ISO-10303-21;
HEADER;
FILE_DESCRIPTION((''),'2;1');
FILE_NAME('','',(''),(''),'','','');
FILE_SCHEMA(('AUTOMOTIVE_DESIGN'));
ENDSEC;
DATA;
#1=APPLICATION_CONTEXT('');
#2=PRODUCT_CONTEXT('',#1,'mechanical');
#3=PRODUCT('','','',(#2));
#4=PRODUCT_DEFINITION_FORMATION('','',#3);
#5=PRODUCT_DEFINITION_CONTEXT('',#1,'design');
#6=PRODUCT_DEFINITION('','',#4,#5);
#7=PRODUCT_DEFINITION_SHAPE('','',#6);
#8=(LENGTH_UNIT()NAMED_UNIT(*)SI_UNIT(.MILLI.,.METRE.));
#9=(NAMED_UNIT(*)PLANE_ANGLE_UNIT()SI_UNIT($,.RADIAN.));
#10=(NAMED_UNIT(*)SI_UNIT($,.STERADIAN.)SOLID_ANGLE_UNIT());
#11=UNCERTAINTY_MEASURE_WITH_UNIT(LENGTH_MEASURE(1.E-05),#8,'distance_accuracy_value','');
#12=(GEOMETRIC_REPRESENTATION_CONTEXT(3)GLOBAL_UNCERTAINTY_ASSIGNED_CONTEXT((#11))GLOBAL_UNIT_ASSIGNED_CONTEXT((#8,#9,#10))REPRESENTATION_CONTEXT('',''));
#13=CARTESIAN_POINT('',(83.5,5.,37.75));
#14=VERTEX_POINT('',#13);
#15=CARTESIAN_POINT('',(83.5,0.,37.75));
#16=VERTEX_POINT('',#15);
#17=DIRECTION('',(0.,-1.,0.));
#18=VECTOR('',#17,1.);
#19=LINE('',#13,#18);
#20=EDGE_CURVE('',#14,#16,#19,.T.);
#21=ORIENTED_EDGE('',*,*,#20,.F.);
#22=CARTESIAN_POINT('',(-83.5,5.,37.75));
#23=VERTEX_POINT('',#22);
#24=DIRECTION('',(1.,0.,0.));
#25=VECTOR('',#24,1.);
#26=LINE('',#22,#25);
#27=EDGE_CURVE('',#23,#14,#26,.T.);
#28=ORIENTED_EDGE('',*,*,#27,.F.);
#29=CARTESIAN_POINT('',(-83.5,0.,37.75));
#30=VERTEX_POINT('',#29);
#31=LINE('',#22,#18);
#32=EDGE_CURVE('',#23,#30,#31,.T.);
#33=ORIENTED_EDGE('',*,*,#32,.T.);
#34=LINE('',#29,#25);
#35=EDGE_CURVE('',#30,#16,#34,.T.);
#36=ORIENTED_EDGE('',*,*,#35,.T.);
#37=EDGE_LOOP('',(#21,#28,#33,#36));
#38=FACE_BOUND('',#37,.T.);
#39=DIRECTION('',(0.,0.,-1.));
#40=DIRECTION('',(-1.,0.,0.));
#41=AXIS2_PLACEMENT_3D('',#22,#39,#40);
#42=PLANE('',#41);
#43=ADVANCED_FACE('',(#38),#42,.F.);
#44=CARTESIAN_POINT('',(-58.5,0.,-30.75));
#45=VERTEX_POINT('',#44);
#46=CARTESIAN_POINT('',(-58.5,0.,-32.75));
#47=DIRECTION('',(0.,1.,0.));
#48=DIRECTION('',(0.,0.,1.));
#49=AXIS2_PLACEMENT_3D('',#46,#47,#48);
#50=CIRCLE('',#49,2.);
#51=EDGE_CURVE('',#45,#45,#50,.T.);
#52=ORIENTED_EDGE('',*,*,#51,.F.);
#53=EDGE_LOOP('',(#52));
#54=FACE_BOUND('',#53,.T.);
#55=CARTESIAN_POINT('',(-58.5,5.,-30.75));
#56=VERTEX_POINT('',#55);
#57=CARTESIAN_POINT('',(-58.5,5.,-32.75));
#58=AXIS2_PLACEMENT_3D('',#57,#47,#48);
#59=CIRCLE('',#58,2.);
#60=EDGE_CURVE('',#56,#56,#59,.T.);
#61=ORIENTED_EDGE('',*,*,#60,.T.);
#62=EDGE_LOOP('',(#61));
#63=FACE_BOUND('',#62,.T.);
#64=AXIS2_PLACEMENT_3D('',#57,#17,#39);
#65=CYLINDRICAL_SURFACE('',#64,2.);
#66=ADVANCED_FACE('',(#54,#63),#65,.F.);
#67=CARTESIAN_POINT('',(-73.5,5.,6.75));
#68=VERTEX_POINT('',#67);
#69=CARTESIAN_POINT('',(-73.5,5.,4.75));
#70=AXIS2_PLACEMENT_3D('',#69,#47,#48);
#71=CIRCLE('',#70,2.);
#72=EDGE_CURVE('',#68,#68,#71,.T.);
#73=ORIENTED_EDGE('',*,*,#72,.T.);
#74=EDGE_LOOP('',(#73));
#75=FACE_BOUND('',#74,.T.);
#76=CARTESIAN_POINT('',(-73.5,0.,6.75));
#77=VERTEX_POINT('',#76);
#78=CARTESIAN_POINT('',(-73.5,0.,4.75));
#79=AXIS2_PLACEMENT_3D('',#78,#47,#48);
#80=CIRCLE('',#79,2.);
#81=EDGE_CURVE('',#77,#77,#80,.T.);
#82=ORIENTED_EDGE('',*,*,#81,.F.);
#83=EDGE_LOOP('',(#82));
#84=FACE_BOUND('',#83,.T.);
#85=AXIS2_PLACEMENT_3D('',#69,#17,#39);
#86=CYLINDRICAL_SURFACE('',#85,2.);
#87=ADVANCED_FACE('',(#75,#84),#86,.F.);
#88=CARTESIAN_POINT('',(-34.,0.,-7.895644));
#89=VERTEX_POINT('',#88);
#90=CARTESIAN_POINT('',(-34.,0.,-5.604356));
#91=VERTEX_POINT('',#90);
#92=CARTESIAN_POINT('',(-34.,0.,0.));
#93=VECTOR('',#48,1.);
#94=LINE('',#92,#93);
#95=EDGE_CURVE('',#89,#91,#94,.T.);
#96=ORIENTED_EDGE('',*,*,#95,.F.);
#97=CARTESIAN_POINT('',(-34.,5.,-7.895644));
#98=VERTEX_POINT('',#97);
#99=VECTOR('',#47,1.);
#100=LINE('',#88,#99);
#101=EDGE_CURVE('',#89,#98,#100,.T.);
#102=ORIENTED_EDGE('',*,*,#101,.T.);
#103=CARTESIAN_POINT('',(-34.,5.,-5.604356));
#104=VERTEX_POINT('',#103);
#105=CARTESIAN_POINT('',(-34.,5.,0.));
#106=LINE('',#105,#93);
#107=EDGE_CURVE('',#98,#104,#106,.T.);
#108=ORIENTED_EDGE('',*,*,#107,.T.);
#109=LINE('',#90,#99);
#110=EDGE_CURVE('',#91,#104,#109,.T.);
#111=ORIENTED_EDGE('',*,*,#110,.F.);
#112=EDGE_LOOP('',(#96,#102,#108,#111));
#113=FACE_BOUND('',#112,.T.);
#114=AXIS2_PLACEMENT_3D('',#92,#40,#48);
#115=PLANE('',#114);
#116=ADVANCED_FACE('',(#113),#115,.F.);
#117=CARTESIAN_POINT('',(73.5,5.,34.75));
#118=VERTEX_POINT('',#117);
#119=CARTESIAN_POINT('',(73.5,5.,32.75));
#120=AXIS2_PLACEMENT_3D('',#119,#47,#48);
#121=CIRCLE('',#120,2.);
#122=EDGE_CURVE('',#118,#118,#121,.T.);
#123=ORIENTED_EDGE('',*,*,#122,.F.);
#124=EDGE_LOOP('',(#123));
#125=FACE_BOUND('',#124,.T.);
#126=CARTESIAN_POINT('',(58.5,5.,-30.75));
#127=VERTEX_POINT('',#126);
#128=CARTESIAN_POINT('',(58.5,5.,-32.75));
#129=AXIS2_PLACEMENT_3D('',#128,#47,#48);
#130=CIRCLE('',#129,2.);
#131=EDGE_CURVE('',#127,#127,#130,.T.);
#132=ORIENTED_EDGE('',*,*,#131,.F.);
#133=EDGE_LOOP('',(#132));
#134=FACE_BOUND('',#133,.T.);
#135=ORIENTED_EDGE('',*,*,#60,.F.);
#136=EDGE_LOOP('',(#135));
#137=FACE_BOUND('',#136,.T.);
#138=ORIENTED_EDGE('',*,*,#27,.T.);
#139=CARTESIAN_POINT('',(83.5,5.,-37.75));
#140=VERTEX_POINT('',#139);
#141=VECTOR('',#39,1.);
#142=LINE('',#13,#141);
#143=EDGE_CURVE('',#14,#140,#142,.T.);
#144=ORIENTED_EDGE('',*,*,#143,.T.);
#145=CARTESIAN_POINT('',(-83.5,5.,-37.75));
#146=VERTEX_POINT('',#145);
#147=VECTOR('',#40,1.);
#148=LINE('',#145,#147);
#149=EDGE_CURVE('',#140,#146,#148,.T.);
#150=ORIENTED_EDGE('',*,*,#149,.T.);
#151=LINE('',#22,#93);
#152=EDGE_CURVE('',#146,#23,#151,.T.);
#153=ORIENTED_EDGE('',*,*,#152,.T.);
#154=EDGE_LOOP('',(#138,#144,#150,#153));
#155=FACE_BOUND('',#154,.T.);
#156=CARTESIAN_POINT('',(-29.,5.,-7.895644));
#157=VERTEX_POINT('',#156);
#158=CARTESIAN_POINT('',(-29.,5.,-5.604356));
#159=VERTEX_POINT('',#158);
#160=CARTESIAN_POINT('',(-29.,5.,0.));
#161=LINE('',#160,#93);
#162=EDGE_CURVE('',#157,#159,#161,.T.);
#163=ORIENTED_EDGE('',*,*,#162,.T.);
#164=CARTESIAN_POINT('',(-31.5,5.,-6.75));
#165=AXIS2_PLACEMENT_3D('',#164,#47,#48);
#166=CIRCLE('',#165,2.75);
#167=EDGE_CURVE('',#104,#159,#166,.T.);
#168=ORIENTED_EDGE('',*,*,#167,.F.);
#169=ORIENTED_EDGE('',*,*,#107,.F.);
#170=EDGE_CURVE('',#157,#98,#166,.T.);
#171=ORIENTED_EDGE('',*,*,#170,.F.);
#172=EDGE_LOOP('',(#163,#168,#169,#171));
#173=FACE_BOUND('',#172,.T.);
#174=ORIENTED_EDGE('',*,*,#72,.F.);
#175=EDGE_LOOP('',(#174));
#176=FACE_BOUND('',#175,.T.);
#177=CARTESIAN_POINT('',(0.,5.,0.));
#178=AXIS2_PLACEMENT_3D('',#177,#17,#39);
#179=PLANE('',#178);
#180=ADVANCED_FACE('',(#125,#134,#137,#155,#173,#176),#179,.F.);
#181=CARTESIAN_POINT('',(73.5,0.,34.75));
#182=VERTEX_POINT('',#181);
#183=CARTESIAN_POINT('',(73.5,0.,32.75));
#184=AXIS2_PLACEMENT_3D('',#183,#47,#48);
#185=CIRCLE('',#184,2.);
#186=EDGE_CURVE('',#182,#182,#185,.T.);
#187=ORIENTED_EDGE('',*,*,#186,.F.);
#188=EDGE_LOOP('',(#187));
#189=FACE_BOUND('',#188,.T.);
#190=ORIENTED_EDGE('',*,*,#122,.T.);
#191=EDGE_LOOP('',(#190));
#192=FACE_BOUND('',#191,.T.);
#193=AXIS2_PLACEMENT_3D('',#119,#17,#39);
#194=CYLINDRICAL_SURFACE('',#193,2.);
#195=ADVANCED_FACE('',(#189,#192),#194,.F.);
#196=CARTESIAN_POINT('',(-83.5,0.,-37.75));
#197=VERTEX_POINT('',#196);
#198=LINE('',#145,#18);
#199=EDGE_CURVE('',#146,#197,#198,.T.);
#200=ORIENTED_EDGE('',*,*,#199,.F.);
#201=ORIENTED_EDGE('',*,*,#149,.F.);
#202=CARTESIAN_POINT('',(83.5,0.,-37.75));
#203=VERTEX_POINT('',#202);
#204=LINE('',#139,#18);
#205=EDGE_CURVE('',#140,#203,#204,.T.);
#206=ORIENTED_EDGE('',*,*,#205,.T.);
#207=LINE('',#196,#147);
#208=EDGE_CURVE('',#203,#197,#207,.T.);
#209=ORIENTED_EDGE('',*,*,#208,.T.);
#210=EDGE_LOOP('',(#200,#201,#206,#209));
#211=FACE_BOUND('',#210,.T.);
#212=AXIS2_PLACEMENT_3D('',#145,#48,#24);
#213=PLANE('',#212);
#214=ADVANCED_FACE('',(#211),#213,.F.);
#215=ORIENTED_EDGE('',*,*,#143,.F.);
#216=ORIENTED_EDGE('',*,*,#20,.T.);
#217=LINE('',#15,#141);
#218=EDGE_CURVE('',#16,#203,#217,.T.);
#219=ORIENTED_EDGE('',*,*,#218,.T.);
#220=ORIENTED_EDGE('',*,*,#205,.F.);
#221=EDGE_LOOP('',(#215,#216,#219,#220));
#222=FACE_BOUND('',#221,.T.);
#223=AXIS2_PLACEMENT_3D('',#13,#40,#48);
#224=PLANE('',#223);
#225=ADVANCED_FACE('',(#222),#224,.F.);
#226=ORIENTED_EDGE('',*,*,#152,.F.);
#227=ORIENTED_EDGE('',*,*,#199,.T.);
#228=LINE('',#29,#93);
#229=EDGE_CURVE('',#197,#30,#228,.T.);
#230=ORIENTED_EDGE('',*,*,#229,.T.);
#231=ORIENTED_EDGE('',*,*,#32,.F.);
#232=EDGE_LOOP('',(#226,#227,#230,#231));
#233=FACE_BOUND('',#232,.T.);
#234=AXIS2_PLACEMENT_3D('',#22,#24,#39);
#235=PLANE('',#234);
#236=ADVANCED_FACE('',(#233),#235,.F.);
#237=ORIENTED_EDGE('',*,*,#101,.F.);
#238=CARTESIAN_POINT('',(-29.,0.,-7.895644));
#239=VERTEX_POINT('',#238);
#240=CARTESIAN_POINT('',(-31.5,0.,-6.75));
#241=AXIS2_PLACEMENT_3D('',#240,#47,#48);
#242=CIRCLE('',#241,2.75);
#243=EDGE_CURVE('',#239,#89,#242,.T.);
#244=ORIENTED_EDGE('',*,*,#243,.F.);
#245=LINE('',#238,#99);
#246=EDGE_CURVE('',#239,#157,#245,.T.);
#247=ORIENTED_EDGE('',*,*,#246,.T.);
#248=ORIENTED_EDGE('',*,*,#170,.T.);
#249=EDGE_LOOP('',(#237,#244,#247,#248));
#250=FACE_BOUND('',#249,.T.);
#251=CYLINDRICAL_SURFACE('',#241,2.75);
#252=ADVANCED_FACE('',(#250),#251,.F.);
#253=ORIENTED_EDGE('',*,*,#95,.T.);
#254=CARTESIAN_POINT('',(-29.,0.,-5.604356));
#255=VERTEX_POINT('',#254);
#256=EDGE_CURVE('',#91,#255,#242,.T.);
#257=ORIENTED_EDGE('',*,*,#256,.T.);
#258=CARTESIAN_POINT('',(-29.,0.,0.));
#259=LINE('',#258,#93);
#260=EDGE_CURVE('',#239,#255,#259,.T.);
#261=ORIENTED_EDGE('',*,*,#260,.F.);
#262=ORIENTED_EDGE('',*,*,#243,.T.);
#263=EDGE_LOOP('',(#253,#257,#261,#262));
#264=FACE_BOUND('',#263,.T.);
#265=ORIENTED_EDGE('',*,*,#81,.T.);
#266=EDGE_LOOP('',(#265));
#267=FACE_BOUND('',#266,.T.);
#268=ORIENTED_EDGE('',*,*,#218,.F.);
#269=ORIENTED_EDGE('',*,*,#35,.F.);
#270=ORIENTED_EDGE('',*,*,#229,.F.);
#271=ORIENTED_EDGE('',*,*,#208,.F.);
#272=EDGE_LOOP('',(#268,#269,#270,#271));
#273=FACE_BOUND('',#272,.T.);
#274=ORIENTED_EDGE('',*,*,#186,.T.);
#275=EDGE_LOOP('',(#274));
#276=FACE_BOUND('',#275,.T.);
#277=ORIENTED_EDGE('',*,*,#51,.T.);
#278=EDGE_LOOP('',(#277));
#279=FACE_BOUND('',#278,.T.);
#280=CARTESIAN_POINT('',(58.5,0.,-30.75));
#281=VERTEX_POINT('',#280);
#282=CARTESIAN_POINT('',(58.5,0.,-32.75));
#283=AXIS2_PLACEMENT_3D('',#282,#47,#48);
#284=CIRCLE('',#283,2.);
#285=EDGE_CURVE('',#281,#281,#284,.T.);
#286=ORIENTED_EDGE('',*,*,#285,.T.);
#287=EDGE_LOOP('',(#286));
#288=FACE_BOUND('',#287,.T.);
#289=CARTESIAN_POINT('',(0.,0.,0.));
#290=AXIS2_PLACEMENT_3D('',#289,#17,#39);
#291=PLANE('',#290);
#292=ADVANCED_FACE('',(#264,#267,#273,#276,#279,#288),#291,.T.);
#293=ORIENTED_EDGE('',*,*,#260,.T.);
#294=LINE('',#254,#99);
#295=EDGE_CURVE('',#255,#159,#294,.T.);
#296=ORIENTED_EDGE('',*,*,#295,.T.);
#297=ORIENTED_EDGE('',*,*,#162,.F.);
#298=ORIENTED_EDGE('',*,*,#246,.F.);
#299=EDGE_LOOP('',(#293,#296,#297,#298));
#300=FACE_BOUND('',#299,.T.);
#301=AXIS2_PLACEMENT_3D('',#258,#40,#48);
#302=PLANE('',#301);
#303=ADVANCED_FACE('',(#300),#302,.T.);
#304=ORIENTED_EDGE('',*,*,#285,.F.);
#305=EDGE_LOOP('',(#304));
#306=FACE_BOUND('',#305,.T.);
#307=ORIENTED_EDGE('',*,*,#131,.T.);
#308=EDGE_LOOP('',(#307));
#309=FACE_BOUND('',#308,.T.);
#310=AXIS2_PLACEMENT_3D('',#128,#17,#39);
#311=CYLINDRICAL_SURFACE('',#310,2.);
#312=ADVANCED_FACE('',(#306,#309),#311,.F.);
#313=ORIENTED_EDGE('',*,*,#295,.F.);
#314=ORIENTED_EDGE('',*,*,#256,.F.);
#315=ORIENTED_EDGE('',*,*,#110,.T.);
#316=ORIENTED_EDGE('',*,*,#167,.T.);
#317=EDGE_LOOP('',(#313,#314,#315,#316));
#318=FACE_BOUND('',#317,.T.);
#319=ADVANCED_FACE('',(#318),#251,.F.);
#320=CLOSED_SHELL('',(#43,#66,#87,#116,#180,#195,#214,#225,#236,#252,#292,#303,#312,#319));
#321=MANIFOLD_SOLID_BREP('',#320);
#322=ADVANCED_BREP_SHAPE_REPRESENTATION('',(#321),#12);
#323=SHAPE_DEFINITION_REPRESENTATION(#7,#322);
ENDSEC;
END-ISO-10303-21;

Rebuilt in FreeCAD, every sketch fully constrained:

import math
import FreeCAD as App
import Part
import Sketcher
from FreeCAD import Vector
Q = App.Units.Quantity

doc = App.newDocument("Part")
body = doc.addObject("PartDesign::Body", "Body")

sketch1 = body.newObject("Sketcher::SketchObject", "Sketch")
sketch1.AttachmentSupport = (doc.getObject("XZ_Plane"), [""])
sketch1.MapMode = "FlatFace"
sketch1.addGeometry([
    Part.LineSegment(Vector(-83.5, -37.8, 0), Vector(-83.5, 37.8, 0)),
    Part.LineSegment(Vector(-83.5, 37.8, 0), Vector(83.5, 37.8, 0)),
    Part.LineSegment(Vector(83.5, 37.8, 0), Vector(83.5, -37.8, 0)),
    Part.LineSegment(Vector(83.5, -37.8, 0), Vector(-83.5, -37.8, 0)),
    Part.Circle(Vector(-73.5, 4.8, 0), Vector(0, 0, 1), 2),
    Part.Circle(Vector(73.5, 32.8, 0), Vector(0, 0, 1), 2),
    Part.Circle(Vector(-58.5, -32.8, 0), Vector(0, 0, 1), 2),
    Part.Circle(Vector(58.5, -32.8, 0), Vector(0, 0, 1), 2),
], False)
sketch1.addConstraint([
    Sketcher.Constraint("Coincident", 0, 2, 1, 1),
    Sketcher.Constraint("Coincident", 1, 2, 2, 1),
    Sketcher.Constraint("Coincident", 2, 2, 3, 1),
    Sketcher.Constraint("Coincident", 3, 2, 0, 1),
    Sketcher.Constraint("Vertical", 0),
    Sketcher.Constraint("Horizontal", 1),
    Sketcher.Constraint("Vertical", 2),
    Sketcher.Constraint("Horizontal", 3),
    Sketcher.Constraint("Equal", 4, 5),
    Sketcher.Constraint("Equal", 5, 6),
    Sketcher.Constraint("Equal", 6, 7),
    Sketcher.Constraint("Symmetric", 0, 2, 2, 2, -1, 1),
    Sketcher.Constraint("Symmetric", 6, 3, 7, 3, -2),
    Sketcher.Constraint("Diameter", 4, Q("4 mm")),
    Sketcher.Constraint("DistanceX", 1, 1, 1, 2, Q("167 mm")),
    Sketcher.Constraint("DistanceY", 0, 1, 0, 2, Q("75.5 mm")),
    Sketcher.Constraint("DistanceX", 4, 3, 5, 3, Q("147 mm")),
    Sketcher.Constraint("DistanceY", 4, 3, 5, 3, Q("28 mm")),
    Sketcher.Constraint("DistanceX", 4, 3, 6, 3, Q("15 mm")),
    Sketcher.Constraint("DistanceX", 7, 3, 5, 3, Q("15 mm")),
    Sketcher.Constraint("DistanceY", 4, 3, 0, 2, Q("33 mm")),
    Sketcher.Constraint("DistanceY", 2, 2, 7, 3, Q("5 mm")),
])
pad1 = body.newObject("PartDesign::Pad", "Pad")
pad1.Profile = sketch1
pad1.Length = 5
pad1.Reversed = True

sketch2 = body.newObject("Sketcher::SketchObject", "Sketch001")
sketch2.AttachmentSupport = (doc.getObject("XZ_Plane"), [""])
sketch2.MapMode = "FlatFace"
sketch2.AttachmentOffset = App.Placement(Vector(0, 0, -5), App.Rotation())
sketch2.addGeometry([
    Part.ArcOfCircle(Part.Circle(Vector(-31.5, -6.8, 0), Vector(0, 0, 1), 2.8), math.radians(-155), math.radians(-25)),
    Part.LineSegment(Vector(-34, -7.9, 0), Vector(-34, -5.6, 0)),
    Part.ArcOfCircle(Part.Circle(Vector(-31.5, -6.8, 0), Vector(0, 0, 1), 2.8), math.radians(25), math.radians(155)),
    Part.LineSegment(Vector(-29, -5.6, 0), Vector(-29, -7.9, 0)),
], False)
sketch2.addConstraint([
    Sketcher.Constraint("Coincident", 0, 1, 1, 1),
    Sketcher.Constraint("Coincident", 1, 2, 2, 2),
    Sketcher.Constraint("Coincident", 2, 1, 3, 1),
    Sketcher.Constraint("Coincident", 3, 2, 0, 2),
    Sketcher.Constraint("Vertical", 1),
    Sketcher.Constraint("Vertical", 3),
    Sketcher.Constraint("Coincident", 2, 3, 0, 3),
    Sketcher.Constraint("Equal", 0, 2),
    Sketcher.Constraint("Horizontal", 1, 2, 2, 1),
    Sketcher.Constraint("Radius", 0, Q("2.75 mm")),
    Sketcher.Constraint("DistanceX", 0, 1, -1, 1, Q("34 mm")),
    Sketcher.Constraint("DistanceX", 2, 1, -1, 1, Q("29 mm")),
    Sketcher.Constraint("DistanceY", 0, 3, -1, 1, Q("6.75 mm")),
])
pocket1 = body.newObject("PartDesign::Pocket", "Pocket")
pocket1.Profile = sketch2
pocket1.Type = "ThroughAll"
pocket1.Reversed = True

doc.recompute()
